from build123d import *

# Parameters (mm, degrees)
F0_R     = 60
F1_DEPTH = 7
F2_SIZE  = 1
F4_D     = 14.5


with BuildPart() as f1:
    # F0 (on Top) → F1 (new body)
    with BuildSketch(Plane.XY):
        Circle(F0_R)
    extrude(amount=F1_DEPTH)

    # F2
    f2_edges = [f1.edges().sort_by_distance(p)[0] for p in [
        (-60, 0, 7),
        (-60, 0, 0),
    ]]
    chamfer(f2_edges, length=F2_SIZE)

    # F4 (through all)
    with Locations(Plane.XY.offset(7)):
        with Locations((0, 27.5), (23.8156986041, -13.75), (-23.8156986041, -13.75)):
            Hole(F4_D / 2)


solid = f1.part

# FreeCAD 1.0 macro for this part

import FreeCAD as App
import Part
import Sketcher

V = App.Vector


def edges_at(feature, points):
    """Names of the edges that pass closest to the given points."""
    edges = feature.Shape.Edges
    near = lambda p: min(range(len(edges)), key=lambda i: edges[i].distToShape(Part.Vertex(*p))[0])
    return sorted({f"Edge{near(p) + 1}" for p in points})

doc = App.newDocument("Part")
body = doc.addObject("PartDesign::Body", "Body")

sketch1 = doc.addObject("Sketcher::SketchObject", "Sketch")
body.addObject(sketch1)
sketch1.AttachmentSupport = (doc.XY_Plane, [""])
sketch1.MapMode = "FlatFace"
sketch1.addGeometry(Part.Circle(V(0, 0, 0), V(0, 0, 1), 60), False)
sketch1.addConstraint([
    Sketcher.Constraint("Coincident", 0, 3, -1, 1),
    Sketcher.Constraint("Diameter", 0, 120.0),
])
pad1 = doc.addObject("PartDesign::Pad", "Pad")
body.addObject(pad1)
pad1.Profile = sketch1
pad1.Length = 7
doc.recompute()

chamfer = doc.addObject("PartDesign::Chamfer", "Chamfer")
body.addObject(chamfer)
chamfer.Base = (pad1, edges_at(pad1, [(-60, 0, 7), (-60, 0, 0)]))
chamfer.Size = 1

sketch2 = doc.addObject("Sketcher::SketchObject", "Sketch001")
body.addObject(sketch2)
sketch2.AttachmentSupport = (doc.XY_Plane, [""])
sketch2.MapMode = "FlatFace"
sketch2.AttachmentOffset = App.Placement(V(0, 0, 7), App.Rotation())
sketch2.addGeometry([
    Part.Circle(V(0, 28, 0), V(0, 0, 1), 7),
    Part.Circle(V(24, -14, 0), V(0, 0, 1), 7),
    Part.Circle(V(-24, -14, 0), V(0, 0, 1), 7),
], False)
sketch2.addConstraint([
    Sketcher.Constraint("Equal", 0, 1),
    Sketcher.Constraint("Equal", 1, 2),
    Sketcher.Constraint("Symmetric", 1, 3, 2, 3, -2),
    Sketcher.Constraint("PointOnObject", 0, 3, -2),
    Sketcher.Constraint("Diameter", 0, 14.5),
    Sketcher.Constraint("DistanceY", -1, 1, 0, 3, 27.5),
    Sketcher.Constraint("DistanceY", 1, 3, -1, 1, 13.75),
    Sketcher.Constraint("DistanceX", -1, 1, 1, 3, 23.815699),
])
doc.recompute()
hole = doc.addObject("PartDesign::Hole", "Hole")
body.addObject(hole)
hole.Profile = sketch2
hole.ThreadType = "None"
hole.Diameter = 14.5
hole.DepthType = "ThroughAll"

doc.recompute()
